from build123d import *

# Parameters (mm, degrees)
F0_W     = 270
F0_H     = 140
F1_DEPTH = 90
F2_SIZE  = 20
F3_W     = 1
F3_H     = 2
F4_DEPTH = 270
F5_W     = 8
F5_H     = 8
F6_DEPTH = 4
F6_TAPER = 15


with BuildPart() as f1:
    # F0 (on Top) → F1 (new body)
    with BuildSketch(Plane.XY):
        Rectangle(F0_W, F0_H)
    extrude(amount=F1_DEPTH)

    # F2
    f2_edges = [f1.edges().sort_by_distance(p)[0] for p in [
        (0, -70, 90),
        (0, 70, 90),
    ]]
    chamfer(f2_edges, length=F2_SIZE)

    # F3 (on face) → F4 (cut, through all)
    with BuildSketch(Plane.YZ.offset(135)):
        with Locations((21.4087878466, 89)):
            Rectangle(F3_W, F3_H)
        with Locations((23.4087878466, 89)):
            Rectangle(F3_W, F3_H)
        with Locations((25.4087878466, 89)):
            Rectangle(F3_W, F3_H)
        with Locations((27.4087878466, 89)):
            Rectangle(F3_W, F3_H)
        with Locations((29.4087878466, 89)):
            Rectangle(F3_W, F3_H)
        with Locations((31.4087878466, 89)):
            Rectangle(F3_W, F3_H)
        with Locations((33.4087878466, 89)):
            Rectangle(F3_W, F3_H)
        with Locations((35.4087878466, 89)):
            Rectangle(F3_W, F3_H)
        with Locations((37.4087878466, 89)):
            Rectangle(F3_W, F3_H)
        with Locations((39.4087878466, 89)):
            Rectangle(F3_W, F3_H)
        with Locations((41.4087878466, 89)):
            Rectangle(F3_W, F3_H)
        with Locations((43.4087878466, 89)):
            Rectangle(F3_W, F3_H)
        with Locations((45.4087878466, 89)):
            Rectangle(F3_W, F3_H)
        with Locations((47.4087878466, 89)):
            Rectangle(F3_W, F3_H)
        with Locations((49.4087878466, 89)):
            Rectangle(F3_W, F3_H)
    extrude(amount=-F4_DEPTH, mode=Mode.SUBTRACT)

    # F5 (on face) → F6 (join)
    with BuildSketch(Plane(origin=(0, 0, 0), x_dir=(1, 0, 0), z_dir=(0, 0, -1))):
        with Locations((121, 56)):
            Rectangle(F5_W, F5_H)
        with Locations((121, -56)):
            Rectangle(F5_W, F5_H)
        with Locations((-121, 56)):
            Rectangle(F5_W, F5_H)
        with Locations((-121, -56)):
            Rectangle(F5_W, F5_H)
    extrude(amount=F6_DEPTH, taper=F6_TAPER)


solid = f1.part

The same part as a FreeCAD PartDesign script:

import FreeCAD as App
import Part
import Sketcher
from FreeCAD import Vector
Q = App.Units.Quantity


def edges_at(feature, points):
    """Names of the edges that pass closest to the given points."""
    edges = feature.Shape.Edges
    near = lambda p: min(range(len(edges)), key=lambda i: edges[i].distToShape(Part.Vertex(*p))[0])
    return sorted({f"Edge{near(p) + 1}" for p in points})


def add_polygon(sketch, points):
    """Adds a closed chain of lines whose ends are joined by coincident constraints."""
    first, n = sketch.GeometryCount, len(points)
    for a, b in zip(points, points[1:] + points[:1]):
        sketch.addGeometry(Part.LineSegment(App.Vector(*a, 0), App.Vector(*b, 0)), False)
    for i in range(n):
        sketch.addConstraint(Sketcher.Constraint("Coincident", first + i, 2, first + (i + 1) % n, 1))

doc = App.newDocument("Part")
body = doc.addObject("PartDesign::Body", "Body")

sketch1 = doc.addObject("Sketcher::SketchObject", "Sketch")
body.addObject(sketch1)
sketch1.AttachmentSupport = (doc.XY_Plane, [""])
sketch1.MapMode = "FlatFace"
add_polygon(sketch1, [(-135, 70), (-135, -70), (135, -70), (135, 70)])
sketch1.addConstraint(Sketcher.Constraint("Vertical", 0))
sketch1.addConstraint(Sketcher.Constraint("Horizontal", 1))
sketch1.addConstraint(Sketcher.Constraint("Vertical", 2))
sketch1.addConstraint(Sketcher.Constraint("Horizontal", 3))
sketch1.addConstraint(Sketcher.Constraint("Symmetric", 0, 2, 2, 2, -1, 1))
sketch1.addConstraint(Sketcher.Constraint("DistanceX", 1, 1, 1, 2, Q("270 mm")))
sketch1.addConstraint(Sketcher.Constraint("DistanceY", 0, 2, 0, 1, Q("140 mm")))
pad1 = doc.addObject("PartDesign::Pad", "Pad")
body.addObject(pad1)
pad1.Profile = sketch1
pad1.Length = 90
doc.recompute()

chamfer = doc.addObject("PartDesign::Chamfer", "Chamfer")
body.addObject(chamfer)
chamfer.Base = (pad1, edges_at(pad1, [(0, -70, 90), (0, 70, 90)]))
chamfer.Size = 20

sketch2 = doc.addObject("Sketcher::SketchObject", "Sketch001")
body.addObject(sketch2)
sketch2.AttachmentSupport = (doc.YZ_Plane, [""])
sketch2.MapMode = "FlatFace"
sketch2.AttachmentOffset = App.Placement(Vector(0, 0, 135), App.Rotation())
add_polygon(sketch2, [(20.9, 90), (20.9, 88), (21.9, 88), (21.9, 90)])
add_polygon(sketch2, [(22.9, 90), (22.9, 88), (23.9, 88), (23.9, 90)])
add_polygon(sketch2, [(24.9, 90), (24.9, 88), (25.9, 88), (25.9, 90)])
add_polygon(sketch2, [(26.9, 90), (26.9, 88), (27.9, 88), (27.9, 90)])
add_polygon(sketch2, [(28.9, 90), (28.9, 88), (29.9, 88), (29.9, 90)])
add_polygon(sketch2, [(30.9, 90), (30.9, 88), (31.9, 88), (31.9, 90)])
add_polygon(sketch2, [(32.9, 90), (32.9, 88), (33.9, 88), (33.9, 90)])
add_polygon(sketch2, [(34.9, 90), (34.9, 88), (35.9, 88), (35.9, 90)])
add_polygon(sketch2, [(36.9, 90), (36.9, 88), (37.9, 88), (37.9, 90)])
add_polygon(sketch2, [(38.9, 90), (38.9, 88), (39.9, 88), (39.9, 90)])
add_polygon(sketch2, [(40.9, 90), (40.9, 88), (41.9, 88), (41.9, 90)])
add_polygon(sketch2, [(42.9, 90), (42.9, 88), (43.9, 88), (43.9, 90)])
add_polygon(sketch2, [(44.9, 90), (44.9, 88), (45.9, 88), (45.9, 90)])
add_polygon(sketch2, [(46.9, 90), (46.9, 88), (47.9, 88), (47.9, 90)])
add_polygon(sketch2, [(48.9, 90), (48.9, 88), (49.9, 88), (49.9, 90)])
sketch2.addConstraint(Sketcher.Constraint("Vertical", 0))
sketch2.addConstraint(Sketcher.Constraint("Horizontal", 1))
sketch2.addConstraint(Sketcher.Constraint("Vertical", 2))
sketch2.addConstraint(Sketcher.Constraint("Horizontal", 3))
sketch2.addConstraint(Sketcher.Constraint("Vertical", 4))
sketch2.addConstraint(Sketcher.Constraint("Horizontal", 5))
sketch2.addConstraint(Sketcher.Constraint("Vertical", 6))
sketch2.addConstraint(Sketcher.Constraint("Horizontal", 7))
sketch2.addConstraint(Sketcher.Constraint("Vertical", 8))
sketch2.addConstraint(Sketcher.Constraint("Horizontal", 9))
sketch2.addConstraint(Sketcher.Constraint("Vertical", 10))
sketch2.addConstraint(Sketcher.Constraint("Horizontal", 11))
sketch2.addConstraint(Sketcher.Constraint("Vertical", 12))
sketch2.addConstraint(Sketcher.Constraint("Horizontal", 13))
sketch2.addConstraint(Sketcher.Constraint("Vertical", 14))
sketch2.addConstraint(Sketcher.Constraint("Horizontal", 15))
sketch2.addConstraint(Sketcher.Constraint("Vertical", 16))
sketch2.addConstraint(Sketcher.Constraint("Horizontal", 17))
sketch2.addConstraint(Sketcher.Constraint("Vertical", 18))
sketch2.addConstraint(Sketcher.Constraint("Horizontal", 19))
sketch2.addConstraint(Sketcher.Constraint("Vertical", 20))
sketch2.addConstraint(Sketcher.Constraint("Horizontal", 21))
sketch2.addConstraint(Sketcher.Constraint("Vertical", 22))
sketch2.addConstraint(Sketcher.Constraint("Horizontal", 23))
sketch2.addConstraint(Sketcher.Constraint("Vertical", 24))
sketch2.addConstraint(Sketcher.Constraint("Horizontal", 25))
sketch2.addConstraint(Sketcher.Constraint("Vertical", 26))
sketch2.addConstraint(Sketcher.Constraint("Horizontal", 27))
sketch2.addConstraint(Sketcher.Constraint("Vertical", 28))
sketch2.addConstraint(Sketcher.Constraint("Horizontal", 29))
sketch2.addConstraint(Sketcher.Constraint("Vertical", 30))
sketch2.addConstraint(Sketcher.Constraint("Horizontal", 31))
sketch2.addConstraint(Sketcher.Constraint("Vertical", 32))
sketch2.addConstraint(Sketcher.Constraint("Horizontal", 33))
sketch2.addConstraint(Sketcher.Constraint("Vertical", 34))
sketch2.addConstraint(Sketcher.Constraint("Horizontal", 35))
sketch2.addConstraint(Sketcher.Constraint("Vertical", 36))
sketch2.addConstraint(Sketcher.Constraint("Horizontal", 37))
sketch2.addConstraint(Sketcher.Constraint("Vertical", 38))
sketch2.addConstraint(Sketcher.Constraint("Horizontal", 39))
sketch2.addConstraint(Sketcher.Constraint("Vertical", 40))
sketch2.addConstraint(Sketcher.Constraint("Horizontal", 41))
sketch2.addConstraint(Sketcher.Constraint("Vertical", 42))
sketch2.addConstraint(Sketcher.Constraint("Horizontal", 43))
sketch2.addConstraint(Sketcher.Constraint("Vertical", 44))
sketch2.addConstraint(Sketcher.Constraint("Horizontal", 45))
sketch2.addConstraint(Sketcher.Constraint("Vertical", 46))
sketch2.addConstraint(Sketcher.Constraint("Horizontal", 47))
sketch2.addConstraint(Sketcher.Constraint("Vertical", 48))
sketch2.addConstraint(Sketcher.Constraint("Horizontal", 49))
sketch2.addConstraint(Sketcher.Constraint("Vertical", 50))
sketch2.addConstraint(Sketcher.Constraint("Horizontal", 51))
sketch2.addConstraint(Sketcher.Constraint("Vertical", 52))
sketch2.addConstraint(Sketcher.Constraint("Horizontal", 53))
sketch2.addConstraint(Sketcher.Constraint("Vertical", 54))
sketch2.addConstraint(Sketcher.Constraint("Horizontal", 55))
sketch2.addConstraint(Sketcher.Constraint("Vertical", 56))
sketch2.addConstraint(Sketcher.Constraint("Horizontal", 57))
sketch2.addConstraint(Sketcher.Constraint("Vertical", 58))
sketch2.addConstraint(Sketcher.Constraint("Horizontal", 59))
sketch2.addConstraint(Sketcher.Constraint("Horizontal", 1, 2, 4, 2))
sketch2.addConstraint(Sketcher.Constraint("Horizontal", 3, 2, 6, 2))
sketch2.addConstraint(Sketcher.Constraint("Horizontal", 5, 2, 8, 2))
sketch2.addConstraint(Sketcher.Constraint("Horizontal", 7, 2, 10, 2))
sketch2.addConstraint(Sketcher.Constraint("Horizontal", 9, 2, 12, 2))
sketch2.addConstraint(Sketcher.Constraint("Horizontal", 11, 2, 14, 2))
sketch2.addConstraint(Sketcher.Constraint("Horizontal", 13, 2, 16, 2))
sketch2.addConstraint(Sketcher.Constraint("Horizontal", 15, 2, 18, 2))
sketch2.addConstraint(Sketcher.Constraint("Horizontal", 17, 2, 20, 2))
sketch2.addConstraint(Sketcher.Constraint("Horizontal", 19, 2, 22, 2))
sketch2.addConstraint(Sketcher.Constraint("Horizontal", 21, 2, 24, 2))
sketch2.addConstraint(Sketcher.Constraint("Horizontal", 23, 2, 26, 2))
sketch2.addConstraint(Sketcher.Constraint("Horizontal", 25, 2, 28, 2))
sketch2.addConstraint(Sketcher.Constraint("Horizontal", 27, 2, 30, 2))
sketch2.addConstraint(Sketcher.Constraint("Horizontal", 29, 2, 32, 2))
sketch2.addConstraint(Sketcher.Constraint("Horizontal", 31, 2, 34, 2))
sketch2.addConstraint(Sketcher.Constraint("Horizontal", 33, 2, 36, 2))
sketch2.addConstraint(Sketcher.Constraint("Horizontal", 35, 2, 38, 2))
sketch2.addConstraint(Sketcher.Constraint("Horizontal", 37, 2, 40, 2))
sketch2.addConstraint(Sketcher.Constraint("Horizontal", 39, 2, 42, 2))
sketch2.addConstraint(Sketcher.Constraint("Horizontal", 41, 2, 44, 2))
sketch2.addConstraint(Sketcher.Constraint("Horizontal", 43, 2, 46, 2))
sketch2.addConstraint(Sketcher.Constraint("Horizontal", 45, 2, 48, 2))
sketch2.addConstraint(Sketcher.Constraint("Horizontal", 47, 2, 50, 2))
sketch2.addConstraint(Sketcher.Constraint("Horizontal", 49, 2, 52, 2))
sketch2.addConstraint(Sketcher.Constraint("Horizontal", 51, 2, 54, 2))
sketch2.addConstraint(Sketcher.Constraint("Horizontal", 53, 2, 56, 2))
sketch2.addConstraint(Sketcher.Constraint("Horizontal", 55, 2, 58, 2))
sketch2.addConstraint(Sketcher.Constraint("Equal", 3, 5))
sketch2.addConstraint(Sketcher.Constraint("Equal", 7, 9))
sketch2.addConstraint(Sketcher.Constraint("Equal", 11, 13))
sketch2.addConstraint(Sketcher.Constraint("Equal", 15, 17))
sketch2.addConstraint(Sketcher.Constraint("Equal", 19, 21))
sketch2.addConstraint(Sketcher.Constraint("Equal", 23, 25))
sketch2.addConstraint(Sketcher.Constraint("Equal", 27, 29))
sketch2.addConstraint(Sketcher.Constraint("Equal", 31, 33))
sketch2.addConstraint(Sketcher.Constraint("Equal", 35, 37))
sketch2.addConstraint(Sketcher.Constraint("Equal", 39, 41))
sketch2.addConstraint(Sketcher.Constraint("Equal", 43, 45))
sketch2.addConstraint(Sketcher.Constraint("Equal", 47, 49))
sketch2.addConstraint(Sketcher.Constraint("Equal", 51, 53))
sketch2.addConstraint(Sketcher.Constraint("Equal", 55, 57))
sketch2.addConstraint(Sketcher.Constraint("DistanceX", 1, 1, 1, 2, Q("1 mm")))
sketch2.addConstraint(Sketcher.Constraint("DistanceY", 0, 2, 0, 1, Q("2 mm")))
sketch2.addConstraint(Sketcher.Constraint("DistanceY", -1, 1, 0, 2, Q("88 mm")))
sketch2.addConstraint(Sketcher.Constraint("DistanceX", 1, 2, 4, 2, Q("1 mm")))
sketch2.addConstraint(Sketcher.Constraint("DistanceX", 5, 2, 8, 2, Q("1 mm")))
sketch2.addConstraint(Sketcher.Constraint("DistanceX", 9, 2, 12, 2, Q("1 mm")))
sketch2.addConstraint(Sketcher.Constraint("DistanceX", 13, 2, 16, 2, Q("1 mm")))
sketch2.addConstraint(Sketcher.Constraint("DistanceX", 17, 2, 20, 2, Q("1 mm")))
sketch2.addConstraint(Sketcher.Constraint("DistanceX", 21, 2, 24, 2, Q("1 mm")))
sketch2.addConstraint(Sketcher.Constraint("DistanceX", 25, 2, 28, 2, Q("1 mm")))
sketch2.addConstraint(Sketcher.Constraint("DistanceX", 29, 2, 32, 2, Q("1 mm")))
sketch2.addConstraint(Sketcher.Constraint("DistanceX", 33, 2, 36, 2, Q("1 mm")))
sketch2.addConstraint(Sketcher.Constraint("DistanceX", 37, 2, 40, 2, Q("1 mm")))
sketch2.addConstraint(Sketcher.Constraint("DistanceX", 41, 2, 44, 2, Q("1 mm")))
sketch2.addConstraint(Sketcher.Constraint("DistanceX", 45, 2, 48, 2, Q("1 mm")))
sketch2.addConstraint(Sketcher.Constraint("DistanceX", 49, 2, 52, 2, Q("1 mm")))
sketch2.addConstraint(Sketcher.Constraint("DistanceX", 53, 2, 56, 2, Q("1 mm")))
sketch2.addConstraint(Sketcher.Constraint("DistanceX", -1, 1, 0, 2, Q("20.908788 mm")))
pocket1 = doc.addObject("PartDesign::Pocket", "Pocket")
body.addObject(pocket1)
pocket1.Profile = sketch2
pocket1.Type = "ThroughAll"

sketch3 = doc.addObject("Sketcher::SketchObject", "Sketch002")
body.addObject(sketch3)
sketch3.AttachmentSupport = (doc.XY_Plane, [""])
sketch3.MapMode = "FlatFace"
add_polygon(sketch3, [(117, -60), (117, -52), (125, -52), (125, -60)])
add_polygon(sketch3, [(117, 52), (117, 60), (125, 60), (125, 52)])
add_polygon(sketch3, [(-125, -60), (-125, -52), (-117, -52), (-117, -60)])
add_polygon(sketch3, [(-125, 52), (-125, 60), (-117, 60), (-117, 52)])
sketch3.addConstraint(Sketcher.Constraint("Vertical", 0))
sketch3.addConstraint(Sketcher.Constraint("Horizontal", 1))
sketch3.addConstraint(Sketcher.Constraint("Vertical", 2))
sketch3.addConstraint(Sketcher.Constraint("Horizontal", 3))
sketch3.addConstraint(Sketcher.Constraint("Vertical", 4))
sketch3.addConstraint(Sketcher.Constraint("Horizontal", 5))
sketch3.addConstraint(Sketcher.Constraint("Vertical", 6))
sketch3.addConstraint(Sketcher.Constraint("Horizontal", 7))
sketch3.addConstraint(Sketcher.Constraint("Vertical", 8))
sketch3.addConstraint(Sketcher.Constraint("Horizontal", 9))
sketch3.addConstraint(Sketcher.Constraint("Vertical", 10))
sketch3.addConstraint(Sketcher.Constraint("Horizontal", 11))
sketch3.addConstraint(Sketcher.Constraint("Vertical", 12))
sketch3.addConstraint(Sketcher.Constraint("Horizontal", 13))
sketch3.addConstraint(Sketcher.Constraint("Vertical", 14))
sketch3.addConstraint(Sketcher.Constraint("Horizontal", 15))
sketch3.addConstraint(Sketcher.Constraint("Symmetric", 6, 2, 8, 2, -1, 1))
sketch3.addConstraint(Sketcher.Constraint("Symmetric", 4, 2, 10, 2, -1, 1))
sketch3.addConstraint(Sketcher.Constraint("Symmetric", 2, 2, 12, 2, -1, 1))
sketch3.addConstraint(Sketcher.Constraint("Symmetric", 0, 2, 14, 2, -1, 1))
sketch3.addConstraint(Sketcher.Constraint("Symmetric", 1, 2, 8, 2, -2))
sketch3.addConstraint(Sketcher.Constraint("Symmetric", 3, 2, 10, 2, -2))
sketch3.addConstraint(Sketcher.Constraint("Equal", 15, 0))
sketch3.addConstraint(Sketcher.Constraint("DistanceX", 1, 1, 1, 2, Q("8 mm")))
sketch3.addConstraint(Sketcher.Constraint("DistanceX", -1, 1, 0, 2, Q("117 mm")))
sketch3.addConstraint(Sketcher.Constraint("DistanceY", 0, 2, -1, 1, Q("52 mm")))
pad2 = doc.addObject("PartDesign::Pad", "Pad001")
body.addObject(pad2)
pad2.Profile = sketch3
pad2.Length = 4
pad2.Reversed = True
pad2.TaperAngle = -15

doc.recompute()
